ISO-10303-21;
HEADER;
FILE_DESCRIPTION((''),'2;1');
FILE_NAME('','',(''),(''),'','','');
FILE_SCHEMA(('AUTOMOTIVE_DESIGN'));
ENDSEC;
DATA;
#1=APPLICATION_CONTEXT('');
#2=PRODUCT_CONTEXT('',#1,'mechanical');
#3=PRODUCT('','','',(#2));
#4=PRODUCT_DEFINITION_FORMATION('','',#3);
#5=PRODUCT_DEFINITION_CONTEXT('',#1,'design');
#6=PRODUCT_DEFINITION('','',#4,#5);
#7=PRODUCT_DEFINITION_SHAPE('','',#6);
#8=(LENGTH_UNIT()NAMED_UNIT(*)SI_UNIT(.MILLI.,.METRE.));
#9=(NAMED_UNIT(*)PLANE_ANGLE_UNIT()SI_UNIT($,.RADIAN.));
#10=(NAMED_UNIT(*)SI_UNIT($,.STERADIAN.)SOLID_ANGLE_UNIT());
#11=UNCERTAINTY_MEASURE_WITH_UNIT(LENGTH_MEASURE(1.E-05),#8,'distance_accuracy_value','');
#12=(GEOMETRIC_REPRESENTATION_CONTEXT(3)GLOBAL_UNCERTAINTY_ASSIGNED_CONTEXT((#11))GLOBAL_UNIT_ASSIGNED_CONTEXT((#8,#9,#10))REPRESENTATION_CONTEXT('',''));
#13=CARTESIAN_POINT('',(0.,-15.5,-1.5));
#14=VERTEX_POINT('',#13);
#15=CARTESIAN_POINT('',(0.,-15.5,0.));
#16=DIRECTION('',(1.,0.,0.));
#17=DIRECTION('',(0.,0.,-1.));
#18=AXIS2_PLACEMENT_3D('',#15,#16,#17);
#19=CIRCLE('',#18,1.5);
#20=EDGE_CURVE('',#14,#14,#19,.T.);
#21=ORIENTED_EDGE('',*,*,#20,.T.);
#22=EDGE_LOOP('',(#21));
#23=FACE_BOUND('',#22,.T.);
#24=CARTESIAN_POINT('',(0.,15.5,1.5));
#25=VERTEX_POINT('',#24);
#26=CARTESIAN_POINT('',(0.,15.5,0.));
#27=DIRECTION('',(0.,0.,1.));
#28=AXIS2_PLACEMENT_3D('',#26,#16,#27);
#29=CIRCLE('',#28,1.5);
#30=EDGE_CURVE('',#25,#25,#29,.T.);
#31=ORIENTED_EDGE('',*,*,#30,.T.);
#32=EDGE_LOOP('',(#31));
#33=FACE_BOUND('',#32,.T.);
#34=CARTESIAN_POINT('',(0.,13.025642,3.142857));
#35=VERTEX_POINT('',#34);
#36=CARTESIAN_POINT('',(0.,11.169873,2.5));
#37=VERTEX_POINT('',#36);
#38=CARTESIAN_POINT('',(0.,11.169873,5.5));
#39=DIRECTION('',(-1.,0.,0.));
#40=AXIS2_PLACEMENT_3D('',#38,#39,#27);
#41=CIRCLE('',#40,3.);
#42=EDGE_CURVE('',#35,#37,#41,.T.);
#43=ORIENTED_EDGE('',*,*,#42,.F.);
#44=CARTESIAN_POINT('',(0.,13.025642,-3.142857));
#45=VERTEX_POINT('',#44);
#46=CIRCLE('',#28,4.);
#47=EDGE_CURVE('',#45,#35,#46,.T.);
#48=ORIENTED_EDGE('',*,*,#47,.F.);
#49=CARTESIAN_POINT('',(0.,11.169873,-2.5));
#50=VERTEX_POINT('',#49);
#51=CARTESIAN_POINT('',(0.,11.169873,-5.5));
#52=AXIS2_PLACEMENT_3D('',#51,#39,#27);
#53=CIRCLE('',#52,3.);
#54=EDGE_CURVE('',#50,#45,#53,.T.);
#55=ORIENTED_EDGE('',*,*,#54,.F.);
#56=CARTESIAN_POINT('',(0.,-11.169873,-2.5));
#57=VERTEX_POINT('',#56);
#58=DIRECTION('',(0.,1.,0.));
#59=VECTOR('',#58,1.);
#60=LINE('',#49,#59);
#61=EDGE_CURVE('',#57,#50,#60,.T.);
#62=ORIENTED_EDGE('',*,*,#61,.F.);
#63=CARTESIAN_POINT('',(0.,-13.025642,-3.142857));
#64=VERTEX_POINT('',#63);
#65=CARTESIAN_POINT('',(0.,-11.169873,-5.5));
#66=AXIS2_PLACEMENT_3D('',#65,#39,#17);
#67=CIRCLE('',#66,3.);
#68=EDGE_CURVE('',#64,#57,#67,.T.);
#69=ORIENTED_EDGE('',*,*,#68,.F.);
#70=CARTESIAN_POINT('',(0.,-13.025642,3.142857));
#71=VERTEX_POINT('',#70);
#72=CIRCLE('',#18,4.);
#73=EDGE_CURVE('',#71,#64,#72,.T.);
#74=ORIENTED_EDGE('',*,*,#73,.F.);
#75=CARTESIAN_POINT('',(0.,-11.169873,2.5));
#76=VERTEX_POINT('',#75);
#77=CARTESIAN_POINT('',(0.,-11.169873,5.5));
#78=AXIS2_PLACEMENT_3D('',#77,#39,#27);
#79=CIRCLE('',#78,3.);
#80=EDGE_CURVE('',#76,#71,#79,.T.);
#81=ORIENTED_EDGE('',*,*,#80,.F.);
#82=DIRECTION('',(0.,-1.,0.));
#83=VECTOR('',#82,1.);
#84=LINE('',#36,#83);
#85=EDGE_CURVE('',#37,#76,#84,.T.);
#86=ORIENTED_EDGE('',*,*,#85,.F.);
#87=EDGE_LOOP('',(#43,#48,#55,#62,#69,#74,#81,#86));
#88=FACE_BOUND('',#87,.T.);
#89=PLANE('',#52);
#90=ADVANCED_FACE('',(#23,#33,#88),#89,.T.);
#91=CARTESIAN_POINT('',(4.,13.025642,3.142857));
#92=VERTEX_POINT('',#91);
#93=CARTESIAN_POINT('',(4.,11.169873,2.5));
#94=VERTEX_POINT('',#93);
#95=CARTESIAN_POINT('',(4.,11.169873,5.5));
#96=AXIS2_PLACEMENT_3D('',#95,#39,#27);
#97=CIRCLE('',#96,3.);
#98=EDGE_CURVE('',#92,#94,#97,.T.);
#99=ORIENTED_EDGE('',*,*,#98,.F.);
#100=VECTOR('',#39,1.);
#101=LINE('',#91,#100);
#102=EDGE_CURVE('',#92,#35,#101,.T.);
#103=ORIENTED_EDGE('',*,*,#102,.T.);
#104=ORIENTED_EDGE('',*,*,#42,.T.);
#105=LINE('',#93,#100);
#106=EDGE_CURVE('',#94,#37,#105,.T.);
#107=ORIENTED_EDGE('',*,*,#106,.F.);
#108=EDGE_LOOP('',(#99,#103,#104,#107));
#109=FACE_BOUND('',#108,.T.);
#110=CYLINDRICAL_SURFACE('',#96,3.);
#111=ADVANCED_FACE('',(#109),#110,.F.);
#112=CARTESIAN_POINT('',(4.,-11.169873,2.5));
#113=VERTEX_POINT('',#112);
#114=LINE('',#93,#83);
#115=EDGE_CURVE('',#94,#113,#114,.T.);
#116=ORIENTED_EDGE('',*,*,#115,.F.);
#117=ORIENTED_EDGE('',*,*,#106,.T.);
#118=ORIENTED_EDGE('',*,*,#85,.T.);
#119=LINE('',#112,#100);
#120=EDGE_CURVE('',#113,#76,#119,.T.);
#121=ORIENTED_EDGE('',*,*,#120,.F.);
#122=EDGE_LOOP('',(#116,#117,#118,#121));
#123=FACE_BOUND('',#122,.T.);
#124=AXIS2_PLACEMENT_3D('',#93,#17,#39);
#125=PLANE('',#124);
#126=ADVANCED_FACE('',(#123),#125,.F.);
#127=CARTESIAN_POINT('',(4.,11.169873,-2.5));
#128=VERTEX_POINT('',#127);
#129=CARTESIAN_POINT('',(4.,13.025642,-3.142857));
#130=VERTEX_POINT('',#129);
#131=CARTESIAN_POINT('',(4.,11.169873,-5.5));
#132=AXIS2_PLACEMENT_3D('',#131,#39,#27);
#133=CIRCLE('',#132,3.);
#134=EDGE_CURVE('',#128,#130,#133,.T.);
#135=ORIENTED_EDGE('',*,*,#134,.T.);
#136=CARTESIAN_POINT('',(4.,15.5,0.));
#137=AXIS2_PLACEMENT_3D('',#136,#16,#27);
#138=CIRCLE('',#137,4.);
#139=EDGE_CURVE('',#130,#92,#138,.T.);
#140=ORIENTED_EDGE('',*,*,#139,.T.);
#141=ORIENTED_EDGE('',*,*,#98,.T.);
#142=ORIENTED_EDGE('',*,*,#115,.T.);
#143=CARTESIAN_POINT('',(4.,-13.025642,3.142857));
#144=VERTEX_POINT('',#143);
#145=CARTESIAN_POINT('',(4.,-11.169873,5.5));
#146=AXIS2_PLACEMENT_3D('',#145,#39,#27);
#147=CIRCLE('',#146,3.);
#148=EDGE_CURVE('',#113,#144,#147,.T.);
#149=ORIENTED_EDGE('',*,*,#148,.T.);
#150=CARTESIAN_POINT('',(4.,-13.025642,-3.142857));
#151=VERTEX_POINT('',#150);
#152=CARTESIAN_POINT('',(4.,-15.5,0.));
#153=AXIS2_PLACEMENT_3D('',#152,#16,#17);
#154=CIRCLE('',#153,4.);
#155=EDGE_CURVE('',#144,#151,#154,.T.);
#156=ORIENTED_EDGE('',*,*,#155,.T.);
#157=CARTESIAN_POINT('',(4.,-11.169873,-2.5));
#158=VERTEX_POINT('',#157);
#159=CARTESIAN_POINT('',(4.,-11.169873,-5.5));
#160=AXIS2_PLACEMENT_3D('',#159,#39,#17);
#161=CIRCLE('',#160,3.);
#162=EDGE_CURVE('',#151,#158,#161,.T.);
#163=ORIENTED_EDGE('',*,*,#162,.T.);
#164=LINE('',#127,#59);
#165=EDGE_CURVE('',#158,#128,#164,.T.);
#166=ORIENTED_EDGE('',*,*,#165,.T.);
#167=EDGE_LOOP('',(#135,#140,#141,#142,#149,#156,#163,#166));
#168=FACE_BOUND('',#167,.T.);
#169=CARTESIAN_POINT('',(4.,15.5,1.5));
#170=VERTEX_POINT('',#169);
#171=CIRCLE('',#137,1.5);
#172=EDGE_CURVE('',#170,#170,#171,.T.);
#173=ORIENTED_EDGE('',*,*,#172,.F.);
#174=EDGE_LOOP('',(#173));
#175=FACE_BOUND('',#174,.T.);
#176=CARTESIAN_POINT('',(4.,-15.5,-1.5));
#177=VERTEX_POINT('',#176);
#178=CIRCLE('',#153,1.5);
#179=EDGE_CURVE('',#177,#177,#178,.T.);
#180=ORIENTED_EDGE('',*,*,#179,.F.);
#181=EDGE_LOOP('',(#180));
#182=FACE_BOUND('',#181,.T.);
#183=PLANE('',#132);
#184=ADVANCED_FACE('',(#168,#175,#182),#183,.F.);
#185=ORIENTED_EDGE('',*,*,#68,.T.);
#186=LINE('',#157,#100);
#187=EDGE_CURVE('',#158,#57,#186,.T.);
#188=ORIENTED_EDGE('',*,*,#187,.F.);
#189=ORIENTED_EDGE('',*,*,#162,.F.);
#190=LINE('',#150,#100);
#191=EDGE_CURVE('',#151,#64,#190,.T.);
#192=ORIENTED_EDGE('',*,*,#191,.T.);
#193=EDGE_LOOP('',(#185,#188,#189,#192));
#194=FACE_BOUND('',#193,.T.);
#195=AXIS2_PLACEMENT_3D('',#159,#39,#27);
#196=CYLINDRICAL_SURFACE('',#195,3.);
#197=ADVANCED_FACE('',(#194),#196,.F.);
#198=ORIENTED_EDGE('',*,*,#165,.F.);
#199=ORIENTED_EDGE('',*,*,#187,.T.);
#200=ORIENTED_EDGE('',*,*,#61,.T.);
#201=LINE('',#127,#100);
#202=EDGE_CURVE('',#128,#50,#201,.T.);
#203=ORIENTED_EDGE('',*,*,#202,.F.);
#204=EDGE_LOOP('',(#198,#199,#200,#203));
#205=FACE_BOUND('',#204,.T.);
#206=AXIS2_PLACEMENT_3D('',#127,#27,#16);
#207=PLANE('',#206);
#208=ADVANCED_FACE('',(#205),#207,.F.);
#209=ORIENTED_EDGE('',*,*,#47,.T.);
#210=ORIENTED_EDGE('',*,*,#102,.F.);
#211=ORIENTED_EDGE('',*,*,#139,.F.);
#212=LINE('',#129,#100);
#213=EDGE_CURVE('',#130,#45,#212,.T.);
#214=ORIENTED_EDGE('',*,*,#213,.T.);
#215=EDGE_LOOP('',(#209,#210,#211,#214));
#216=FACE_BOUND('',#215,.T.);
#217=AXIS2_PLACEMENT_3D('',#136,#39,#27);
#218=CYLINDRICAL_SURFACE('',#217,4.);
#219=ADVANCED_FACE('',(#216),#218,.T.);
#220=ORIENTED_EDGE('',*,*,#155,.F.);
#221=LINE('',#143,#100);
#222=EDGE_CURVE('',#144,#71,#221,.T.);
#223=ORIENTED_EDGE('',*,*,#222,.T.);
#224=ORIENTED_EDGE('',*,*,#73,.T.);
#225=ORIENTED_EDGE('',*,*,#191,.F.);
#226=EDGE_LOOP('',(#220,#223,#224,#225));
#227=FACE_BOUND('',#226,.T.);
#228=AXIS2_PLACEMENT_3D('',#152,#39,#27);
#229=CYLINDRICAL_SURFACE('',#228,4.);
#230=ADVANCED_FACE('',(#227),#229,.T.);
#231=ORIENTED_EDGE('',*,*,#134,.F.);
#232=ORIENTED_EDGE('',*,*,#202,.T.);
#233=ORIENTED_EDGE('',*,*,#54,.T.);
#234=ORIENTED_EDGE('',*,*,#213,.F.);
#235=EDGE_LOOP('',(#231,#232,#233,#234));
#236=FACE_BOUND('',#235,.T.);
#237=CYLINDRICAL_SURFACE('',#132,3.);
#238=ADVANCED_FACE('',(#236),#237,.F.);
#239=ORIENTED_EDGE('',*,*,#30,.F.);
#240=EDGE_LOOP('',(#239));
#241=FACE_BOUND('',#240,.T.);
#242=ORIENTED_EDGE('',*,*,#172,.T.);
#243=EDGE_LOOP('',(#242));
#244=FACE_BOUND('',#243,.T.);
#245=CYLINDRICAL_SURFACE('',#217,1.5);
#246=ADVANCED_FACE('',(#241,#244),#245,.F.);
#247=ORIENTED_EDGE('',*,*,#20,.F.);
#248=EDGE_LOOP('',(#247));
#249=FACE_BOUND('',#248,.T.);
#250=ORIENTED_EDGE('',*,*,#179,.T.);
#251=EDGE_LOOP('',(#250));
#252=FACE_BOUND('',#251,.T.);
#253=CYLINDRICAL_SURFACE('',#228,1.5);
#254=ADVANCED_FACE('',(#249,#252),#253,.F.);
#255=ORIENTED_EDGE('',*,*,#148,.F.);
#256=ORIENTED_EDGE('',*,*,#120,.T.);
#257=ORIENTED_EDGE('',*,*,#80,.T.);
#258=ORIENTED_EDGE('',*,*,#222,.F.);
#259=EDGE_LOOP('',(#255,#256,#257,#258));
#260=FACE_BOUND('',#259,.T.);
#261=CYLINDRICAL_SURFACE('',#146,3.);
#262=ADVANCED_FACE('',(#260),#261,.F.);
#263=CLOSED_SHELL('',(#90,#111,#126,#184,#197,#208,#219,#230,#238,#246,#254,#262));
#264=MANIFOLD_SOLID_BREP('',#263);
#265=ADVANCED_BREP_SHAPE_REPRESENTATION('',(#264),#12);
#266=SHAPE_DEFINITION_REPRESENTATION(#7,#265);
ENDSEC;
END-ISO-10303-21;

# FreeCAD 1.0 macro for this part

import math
import FreeCAD as App
import Part
import Sketcher
from FreeCAD import Vector

doc = App.newDocument("Part")
body = doc.addObject("PartDesign::Body", "Body")

# Sketch on YZ plane
sketch1 = body.newObject("Sketcher::SketchObject", "Sketch")
sketch1.AttachmentSupport = (doc.getObject("YZ_Plane"), [""])
sketch1.MapMode = "FlatFace"
sketch1.addGeometry([
    Part.LineSegment(Vector(-11.2, -2.5, 0), Vector(11.2, -2.5, 0)),  # 0
    Part.ArcOfCircle(Part.Circle(Vector(11.2, -5.5, 0), Vector(0, 0, 1), 3), math.radians(52), math.radians(90)),  # 1
    Part.ArcOfCircle(Part.Circle(Vector(15.5, 0, 0), Vector(0, 0, 1), 4), math.radians(-128), math.radians(128)),  # 2
    Part.ArcOfCircle(Part.Circle(Vector(11.2, 5.5, 0), Vector(0, 0, 1), 3), math.radians(-90), math.radians(-52)),  # 3
    Part.LineSegment(Vector(11.2, 2.5, 0), Vector(-11.2, 2.5, 0)),  # 4
    Part.ArcOfCircle(Part.Circle(Vector(-11.2, 5.5, 0), Vector(0, 0, 1), 3), math.radians(-128), math.radians(-90)),  # 5
    Part.ArcOfCircle(Part.Circle(Vector(-15.5, 0, 0), Vector(0, 0, 1), 4), math.radians(52), math.radians(308)),  # 6
    Part.ArcOfCircle(Part.Circle(Vector(-11.2, -5.5, 0), Vector(0, 0, 1), 3), math.radians(90), math.radians(128)),  # 7
    Part.Circle(Vector(15.5, 0, 0), Vector(0, 0, 1), 1.5),  # 8
    Part.Circle(Vector(-15.5, 0, 0), Vector(0, 0, 1), 1.5),  # 9
], False)
sketch1.addConstraint([
    Sketcher.Constraint("Tangent", 0, 2, 1, 2),
    Sketcher.Constraint("Tangent", 1, 1, 2, 1),
    Sketcher.Constraint("Tangent", 2, 2, 3, 2),
    Sketcher.Constraint("Tangent", 3, 1, 4, 1),
    Sketcher.Constraint("Tangent", 4, 2, 5, 2),
    Sketcher.Constraint("Tangent", 5, 1, 6, 1),
    Sketcher.Constraint("Tangent", 6, 2, 7, 2),
    Sketcher.Constraint("Tangent", 7, 1, 0, 1),
    Sketcher.Constraint("Horizontal", 0),
    Sketcher.Constraint("Horizontal", 4),
    Sketcher.Constraint("Coincident", 8, 3, 2, 3),
    Sketcher.Constraint("Coincident", 9, 3, 6, 3),
    Sketcher.Constraint("Equal", 1, 3),
    Sketcher.Constraint("Equal", 3, 5),
    Sketcher.Constraint("Equal", 2, 6),
    Sketcher.Constraint("Equal", 5, 7),
    Sketcher.Constraint("Equal", 8, 9),
    Sketcher.Constraint("Symmetric", 1, 3, 5, 3, -1, 1),
    Sketcher.Constraint("Symmetric", 2, 3, 6, 3, -2),
    Sketcher.Constraint("Diameter", 8, 3.0),
    Sketcher.Constraint("Radius", 1, 3.0),
    Sketcher.Constraint("Radius", 2, 4.0),
    Sketcher.Constraint("DistanceY", 1, 3, 3, 3, 11.0),
    Sketcher.Constraint("DistanceX", 6, 3, 2, 3, 31.0),
])
pad1 = body.newObject("PartDesign::Pad", "Pad")
pad1.Profile = sketch1
pad1.Length = 4

doc.recompute()
